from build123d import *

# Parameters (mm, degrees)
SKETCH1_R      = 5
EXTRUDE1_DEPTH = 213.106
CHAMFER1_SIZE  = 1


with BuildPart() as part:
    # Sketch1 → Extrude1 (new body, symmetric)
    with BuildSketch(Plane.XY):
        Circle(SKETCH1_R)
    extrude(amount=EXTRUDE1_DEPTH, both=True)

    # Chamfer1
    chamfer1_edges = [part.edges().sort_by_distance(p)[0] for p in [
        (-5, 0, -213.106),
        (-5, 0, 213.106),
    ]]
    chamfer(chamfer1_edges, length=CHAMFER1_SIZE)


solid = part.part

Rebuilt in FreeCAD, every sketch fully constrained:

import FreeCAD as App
import Part
import Sketcher

V = App.Vector
Q = App.Units.Quantity


def edges_at(feature, points):
    """Names of the edges that pass closest to the given points."""
    edges = feature.Shape.Edges
    near = lambda p: min(range(len(edges)), key=lambda i: edges[i].distToShape(Part.Vertex(*p))[0])
    return sorted({f"Edge{near(p) + 1}" for p in points})

doc = App.newDocument("Part")
body = doc.addObject("PartDesign::Body", "Body")

sketch1 = body.newObject("Sketcher::SketchObject", "Sketch")
sketch1.AttachmentSupport = (doc.getObject("XY_Plane"), [""])
sketch1.MapMode = "FlatFace"
sketch1.addGeometry(Part.Circle(V(0, 0, 0), V(0, 0, 1), 5), False)
sketch1.addConstraint([
    Sketcher.Constraint("Coincident", 0, 3, -1, 1),
    Sketcher.Constraint("Diameter", 0, Q("10 mm")),
])
pad1 = body.newObject("PartDesign::Pad", "Pad")
pad1.Profile = sketch1
pad1.Length = 426.212
pad1.Midplane = True
doc.recompute()

chamfer = body.newObject("PartDesign::Chamfer", "Chamfer")
chamfer.Base = (pad1, edges_at(pad1, [(-5, 0, -213.106), (-5, 0, 213.106)]))
chamfer.Size = 1

doc.recompute()
